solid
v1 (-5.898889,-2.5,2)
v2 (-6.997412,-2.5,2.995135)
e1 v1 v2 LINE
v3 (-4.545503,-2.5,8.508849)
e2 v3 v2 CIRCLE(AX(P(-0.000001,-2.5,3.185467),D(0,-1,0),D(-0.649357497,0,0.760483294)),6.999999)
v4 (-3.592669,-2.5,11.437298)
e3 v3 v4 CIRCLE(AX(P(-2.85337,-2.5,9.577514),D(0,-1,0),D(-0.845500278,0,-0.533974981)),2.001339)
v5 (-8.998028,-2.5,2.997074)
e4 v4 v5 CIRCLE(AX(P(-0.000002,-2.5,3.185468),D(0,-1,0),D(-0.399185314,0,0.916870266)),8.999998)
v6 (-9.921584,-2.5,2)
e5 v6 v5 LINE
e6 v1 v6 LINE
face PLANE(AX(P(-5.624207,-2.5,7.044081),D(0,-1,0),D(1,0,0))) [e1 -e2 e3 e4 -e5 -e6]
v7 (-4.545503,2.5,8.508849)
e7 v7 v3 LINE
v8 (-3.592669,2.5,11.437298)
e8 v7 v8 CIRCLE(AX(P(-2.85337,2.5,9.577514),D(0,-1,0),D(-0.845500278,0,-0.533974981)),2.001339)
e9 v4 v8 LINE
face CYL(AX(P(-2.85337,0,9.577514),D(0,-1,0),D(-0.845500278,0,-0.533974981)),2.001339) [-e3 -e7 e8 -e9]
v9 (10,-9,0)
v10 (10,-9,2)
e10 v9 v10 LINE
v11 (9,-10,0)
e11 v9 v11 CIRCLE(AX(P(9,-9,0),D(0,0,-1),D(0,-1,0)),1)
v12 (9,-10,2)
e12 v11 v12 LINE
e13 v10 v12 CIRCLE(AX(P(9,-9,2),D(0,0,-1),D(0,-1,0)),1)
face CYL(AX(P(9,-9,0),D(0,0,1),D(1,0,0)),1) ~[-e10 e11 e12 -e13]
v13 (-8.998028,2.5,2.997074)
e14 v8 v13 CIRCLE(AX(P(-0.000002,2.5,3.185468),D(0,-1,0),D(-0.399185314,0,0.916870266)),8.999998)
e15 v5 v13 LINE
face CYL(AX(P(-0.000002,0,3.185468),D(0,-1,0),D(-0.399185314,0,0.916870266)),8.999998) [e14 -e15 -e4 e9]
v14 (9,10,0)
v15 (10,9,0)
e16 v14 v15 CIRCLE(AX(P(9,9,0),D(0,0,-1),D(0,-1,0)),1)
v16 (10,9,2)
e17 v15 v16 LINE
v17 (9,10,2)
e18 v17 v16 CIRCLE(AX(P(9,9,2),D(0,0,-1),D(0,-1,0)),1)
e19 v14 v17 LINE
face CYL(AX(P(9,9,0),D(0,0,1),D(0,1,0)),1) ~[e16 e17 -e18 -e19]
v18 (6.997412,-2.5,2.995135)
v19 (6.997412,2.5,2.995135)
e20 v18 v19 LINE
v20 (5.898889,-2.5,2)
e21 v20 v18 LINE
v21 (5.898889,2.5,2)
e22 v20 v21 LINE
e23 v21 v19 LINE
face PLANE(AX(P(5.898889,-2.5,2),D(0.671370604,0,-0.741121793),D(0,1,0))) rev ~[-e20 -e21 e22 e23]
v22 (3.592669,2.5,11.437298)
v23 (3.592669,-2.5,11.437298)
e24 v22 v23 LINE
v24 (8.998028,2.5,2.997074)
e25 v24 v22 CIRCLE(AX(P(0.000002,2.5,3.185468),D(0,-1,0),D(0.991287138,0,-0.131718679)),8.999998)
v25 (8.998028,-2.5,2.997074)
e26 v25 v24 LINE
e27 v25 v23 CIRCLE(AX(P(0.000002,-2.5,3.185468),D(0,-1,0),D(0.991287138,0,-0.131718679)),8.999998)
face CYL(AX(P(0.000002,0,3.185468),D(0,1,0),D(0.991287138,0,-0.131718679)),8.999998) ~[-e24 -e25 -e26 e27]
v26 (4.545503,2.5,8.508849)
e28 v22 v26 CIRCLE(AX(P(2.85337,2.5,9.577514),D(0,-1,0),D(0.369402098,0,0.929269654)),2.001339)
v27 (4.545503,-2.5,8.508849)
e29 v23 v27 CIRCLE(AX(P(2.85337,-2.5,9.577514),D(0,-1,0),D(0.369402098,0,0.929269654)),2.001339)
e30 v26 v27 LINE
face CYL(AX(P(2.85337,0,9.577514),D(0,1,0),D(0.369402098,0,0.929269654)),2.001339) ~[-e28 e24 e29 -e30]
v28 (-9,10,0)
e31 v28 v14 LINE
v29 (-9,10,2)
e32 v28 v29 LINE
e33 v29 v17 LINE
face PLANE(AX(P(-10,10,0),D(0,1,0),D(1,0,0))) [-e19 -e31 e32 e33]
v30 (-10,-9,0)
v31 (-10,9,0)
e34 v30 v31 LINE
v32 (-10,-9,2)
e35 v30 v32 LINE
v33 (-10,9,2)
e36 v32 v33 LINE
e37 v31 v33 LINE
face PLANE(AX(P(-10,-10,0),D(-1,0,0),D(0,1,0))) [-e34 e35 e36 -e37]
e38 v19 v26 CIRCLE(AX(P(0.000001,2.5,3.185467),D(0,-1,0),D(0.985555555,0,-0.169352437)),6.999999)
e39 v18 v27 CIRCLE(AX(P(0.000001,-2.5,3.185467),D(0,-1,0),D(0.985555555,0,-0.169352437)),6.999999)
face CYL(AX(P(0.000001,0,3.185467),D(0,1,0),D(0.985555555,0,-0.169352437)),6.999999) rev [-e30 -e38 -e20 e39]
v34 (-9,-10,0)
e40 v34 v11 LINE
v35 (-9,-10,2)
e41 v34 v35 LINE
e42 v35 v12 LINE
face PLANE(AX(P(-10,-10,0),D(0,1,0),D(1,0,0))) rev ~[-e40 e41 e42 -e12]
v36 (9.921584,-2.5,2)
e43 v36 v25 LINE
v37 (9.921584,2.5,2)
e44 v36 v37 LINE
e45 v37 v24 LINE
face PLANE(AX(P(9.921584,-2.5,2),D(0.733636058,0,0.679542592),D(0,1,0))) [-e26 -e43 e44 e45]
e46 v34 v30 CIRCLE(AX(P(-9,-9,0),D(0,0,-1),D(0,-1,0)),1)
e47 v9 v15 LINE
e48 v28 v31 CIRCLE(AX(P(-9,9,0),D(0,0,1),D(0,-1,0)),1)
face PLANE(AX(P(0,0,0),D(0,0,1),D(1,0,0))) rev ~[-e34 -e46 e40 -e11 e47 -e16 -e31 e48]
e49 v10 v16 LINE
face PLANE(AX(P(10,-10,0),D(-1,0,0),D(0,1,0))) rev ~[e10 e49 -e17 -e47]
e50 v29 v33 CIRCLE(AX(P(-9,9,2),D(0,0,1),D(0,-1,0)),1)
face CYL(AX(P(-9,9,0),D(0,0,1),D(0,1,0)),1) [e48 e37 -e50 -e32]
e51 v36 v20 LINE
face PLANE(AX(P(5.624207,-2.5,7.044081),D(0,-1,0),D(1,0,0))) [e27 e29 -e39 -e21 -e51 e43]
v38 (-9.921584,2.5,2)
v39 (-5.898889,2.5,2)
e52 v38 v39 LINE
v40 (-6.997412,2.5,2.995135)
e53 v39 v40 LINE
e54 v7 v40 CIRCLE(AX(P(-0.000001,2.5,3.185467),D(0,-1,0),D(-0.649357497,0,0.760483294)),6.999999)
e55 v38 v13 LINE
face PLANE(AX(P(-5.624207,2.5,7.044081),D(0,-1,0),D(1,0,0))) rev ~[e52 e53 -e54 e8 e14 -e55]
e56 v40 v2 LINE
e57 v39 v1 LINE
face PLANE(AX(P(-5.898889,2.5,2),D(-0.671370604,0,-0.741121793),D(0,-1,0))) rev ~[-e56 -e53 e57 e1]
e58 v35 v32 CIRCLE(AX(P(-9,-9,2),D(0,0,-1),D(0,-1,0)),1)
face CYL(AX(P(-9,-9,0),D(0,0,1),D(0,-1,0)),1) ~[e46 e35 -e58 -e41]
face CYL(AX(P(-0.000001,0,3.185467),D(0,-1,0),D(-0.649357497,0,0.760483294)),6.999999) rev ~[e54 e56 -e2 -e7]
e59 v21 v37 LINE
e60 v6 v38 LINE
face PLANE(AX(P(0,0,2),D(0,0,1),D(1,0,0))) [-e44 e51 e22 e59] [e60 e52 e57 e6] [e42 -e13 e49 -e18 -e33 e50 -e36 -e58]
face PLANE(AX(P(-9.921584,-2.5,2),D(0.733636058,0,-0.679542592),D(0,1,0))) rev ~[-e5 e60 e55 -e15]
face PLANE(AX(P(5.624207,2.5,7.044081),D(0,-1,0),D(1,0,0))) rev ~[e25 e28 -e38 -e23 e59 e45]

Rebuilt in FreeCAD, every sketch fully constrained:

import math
import FreeCAD as App
import Part
import Sketcher

V = App.Vector
Q = App.Units.Quantity


def edges_at(feature, points):
    """Names of the edges that pass closest to the given points."""
    edges = feature.Shape.Edges
    near = lambda p: min(range(len(edges)), key=lambda i: edges[i].distToShape(Part.Vertex(*p))[0])
    return sorted({f"Edge{near(p) + 1}" for p in points})

doc = App.newDocument("Part")
body = doc.addObject("PartDesign::Body", "Body")

# Sketch on XY plane
sketch1 = body.newObject("Sketcher::SketchObject", "Sketch")
sketch1.AttachmentSupport = (doc.getObject("XY_Plane"), [""])
sketch1.MapMode = "FlatFace"
sketch1.addGeometry([
    Part.LineSegment(V(-10, 10, 0), V(-10, -10, 0)),
    Part.LineSegment(V(-10, -10, 0), V(10, -10, 0)),
    Part.LineSegment(V(10, -10, 0), V(10, 10, 0)),
    Part.LineSegment(V(10, 10, 0), V(-10, 10, 0)),
], False)
sketch1.addConstraint([
    Sketcher.Constraint("Coincident", 0, 2, 1, 1),
    Sketcher.Constraint("Coincident", 1, 2, 2, 1),
    Sketcher.Constraint("Coincident", 2, 2, 3, 1),
    Sketcher.Constraint("Coincident", 3, 2, 0, 1),
    Sketcher.Constraint("Vertical", 0),
    Sketcher.Constraint("Horizontal", 1),
    Sketcher.Constraint("Vertical", 2),
    Sketcher.Constraint("Horizontal", 3),
    Sketcher.Constraint("Symmetric", 0, 2, 2, 2, -1, 1),
    Sketcher.Constraint("Equal", 3, 0),
    Sketcher.Constraint("DistanceX", 1, 1, 1, 2, Q("20 mm")),
])
pad1 = body.newObject("PartDesign::Pad", "Pad")
pad1.Profile = sketch1
pad1.Length = 2

# Sketch on XZ plane
sketch2 = body.newObject("Sketcher::SketchObject", "Sketch001")
sketch2.AttachmentSupport = (doc.getObject("XZ_Plane"), [""])
sketch2.MapMode = "FlatFace"
sketch2.addGeometry([
    Part.ArcOfCircle(Part.Circle(V(0, 3.2, 0), V(0, 0, 1), 9), math.radians(-8), math.radians(66)),  # 0
    Part.ArcOfCircle(Part.Circle(V(2.9, 9.6, 0), V(0, 0, 1), 2), math.radians(68), math.radians(328)),  # 1
    Part.ArcOfCircle(Part.Circle(V(0, 3.2, 0), V(0, 0, 1), 7), math.radians(-10), math.radians(50)),  # 2
    Part.LineSegment(V(6.9, 2, 0), V(8.9, 2, 0)),  # 3
    Part.LineSegment(V(-8.9, 2, 0), V(-6.9, 2, 0)),  # 4
    Part.ArcOfCircle(Part.Circle(V(0, 3.2, 0), V(0, 0, 1), 7), math.radians(130), math.radians(190)),  # 5
    Part.ArcOfCircle(Part.Circle(V(-2.9, 9.6, 0), V(0, 0, 1), 2), math.radians(-148), math.radians(112)),  # 6
    Part.ArcOfCircle(Part.Circle(V(0, 3.2, 0), V(0, 0, 1), 9), math.radians(114), math.radians(188)),  # 7
], False)
sketch2.addConstraint([
    Sketcher.Constraint("Coincident", 0, 2, 1, 1),
    Sketcher.Constraint("Coincident", 1, 2, 2, 2),
    Sketcher.Constraint("Coincident", 2, 1, 3, 1),
    Sketcher.Constraint("Coincident", 3, 2, 0, 1),
    Sketcher.Constraint("Coincident", 4, 2, 5, 2),
    Sketcher.Constraint("Coincident", 5, 1, 6, 1),
    Sketcher.Constraint("Coincident", 6, 2, 7, 1),
    Sketcher.Constraint("Coincident", 7, 2, 4, 1),
    Sketcher.Constraint("Horizontal", 3),
    Sketcher.Constraint("Horizontal", 4),
    Sketcher.Constraint("Coincident", 2, 3, 0, 3),
    Sketcher.Constraint("Coincident", 5, 3, 0, 3),
    Sketcher.Constraint("Coincident", 7, 3, 0, 3),
    Sketcher.Constraint("Equal", 2, 5),
    Sketcher.Constraint("Equal", 1, 6),
    Sketcher.Constraint("Equal", 0, 7),
    Sketcher.Constraint("Symmetric", 1, 3, 6, 3, -2),
    Sketcher.Constraint("Symmetric", 2, 1, 4, 2, -2),
    Sketcher.Constraint("Radius", 2, Q("6.999999 mm")),
    Sketcher.Constraint("DistanceY", -1, 1, 2, 1, Q("2 mm")),
    Sketcher.Constraint("Radius", 1, Q("2.001339 mm")),
    Sketcher.Constraint("Radius", 0, Q("8.999998 mm")),
    Sketcher.Constraint("DistanceY", -1, 1, 0, 2, Q("11.437298 mm")),
    Sketcher.Constraint("DistanceX", 1, 3, 0, 2, Q("0.739299 mm")),
    Sketcher.Constraint("DistanceX", 0, 3, 1, 2, Q("4.545501 mm")),
])
pad2 = body.newObject("PartDesign::Pad", "Pad001")
pad2.Profile = sketch2
pad2.Length = 5
pad2.Midplane = True
doc.recompute()

chamfer = body.newObject("PartDesign::Chamfer", "Chamfer")
chamfer.Base = (pad2, edges_at(pad2, [
    (-6.899, 0, 2),
    (8.922, 0, 2),
    (-8.922, 0, 2),
    (6.899, 0, 2),
]))
chamfer.Size = 1
doc.recompute()

fillet = body.newObject("PartDesign::Fillet", "Fillet")
fillet.Base = (chamfer, edges_at(chamfer, [
    (10, -10, 1),
    (10, 10, 1),
    (-10, -10, 1),
    (-10, 10, 1),
]))
fillet.Radius = 1

doc.recompute()
